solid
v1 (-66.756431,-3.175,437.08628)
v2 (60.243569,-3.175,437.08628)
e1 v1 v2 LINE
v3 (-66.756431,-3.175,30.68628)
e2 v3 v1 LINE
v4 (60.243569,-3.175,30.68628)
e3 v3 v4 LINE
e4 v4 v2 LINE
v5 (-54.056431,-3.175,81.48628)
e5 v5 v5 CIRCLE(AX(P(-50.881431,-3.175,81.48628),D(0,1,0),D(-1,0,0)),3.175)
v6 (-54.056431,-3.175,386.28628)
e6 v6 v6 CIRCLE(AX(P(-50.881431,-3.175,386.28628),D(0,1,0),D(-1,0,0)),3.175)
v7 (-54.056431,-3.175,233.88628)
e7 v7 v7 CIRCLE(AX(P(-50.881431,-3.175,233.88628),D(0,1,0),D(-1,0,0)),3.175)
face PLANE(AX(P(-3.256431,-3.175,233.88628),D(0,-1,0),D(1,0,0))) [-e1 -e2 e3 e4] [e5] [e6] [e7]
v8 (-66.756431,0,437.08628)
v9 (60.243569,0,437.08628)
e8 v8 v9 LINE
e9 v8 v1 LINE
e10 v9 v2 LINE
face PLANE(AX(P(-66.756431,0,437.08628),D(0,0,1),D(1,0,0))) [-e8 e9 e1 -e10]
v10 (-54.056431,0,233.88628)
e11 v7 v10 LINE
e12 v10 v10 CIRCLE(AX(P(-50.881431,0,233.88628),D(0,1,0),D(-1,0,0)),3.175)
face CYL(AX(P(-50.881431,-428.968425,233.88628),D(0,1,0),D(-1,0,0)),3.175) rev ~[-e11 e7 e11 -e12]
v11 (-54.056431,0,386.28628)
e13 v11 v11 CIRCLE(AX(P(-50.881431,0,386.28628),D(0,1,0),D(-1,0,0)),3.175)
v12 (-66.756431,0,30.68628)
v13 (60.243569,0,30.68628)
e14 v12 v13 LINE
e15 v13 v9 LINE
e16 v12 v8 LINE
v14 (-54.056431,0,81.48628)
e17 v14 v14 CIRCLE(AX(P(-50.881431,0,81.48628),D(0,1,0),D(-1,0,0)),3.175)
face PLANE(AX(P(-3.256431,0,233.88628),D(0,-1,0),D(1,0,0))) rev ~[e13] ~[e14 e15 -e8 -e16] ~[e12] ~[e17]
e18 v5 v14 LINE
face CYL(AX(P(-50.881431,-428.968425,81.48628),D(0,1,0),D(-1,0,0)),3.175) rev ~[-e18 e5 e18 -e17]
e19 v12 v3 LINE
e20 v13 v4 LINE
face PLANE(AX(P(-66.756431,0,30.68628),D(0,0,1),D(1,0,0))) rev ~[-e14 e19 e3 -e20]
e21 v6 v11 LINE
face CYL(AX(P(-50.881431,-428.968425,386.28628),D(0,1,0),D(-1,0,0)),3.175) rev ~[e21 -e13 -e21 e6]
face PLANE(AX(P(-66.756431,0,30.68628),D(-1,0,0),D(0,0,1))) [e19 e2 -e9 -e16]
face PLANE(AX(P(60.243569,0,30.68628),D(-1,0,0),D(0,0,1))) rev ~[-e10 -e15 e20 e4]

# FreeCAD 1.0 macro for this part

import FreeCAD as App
import Part
import Sketcher
from FreeCAD import Vector
Q = App.Units.Quantity


def add_polygon(sketch, points):
    """Adds a closed chain of lines whose ends are joined by coincident constraints."""
    first, n = sketch.GeometryCount, len(points)
    for a, b in zip(points, points[1:] + points[:1]):
        sketch.addGeometry(Part.LineSegment(App.Vector(*a, 0), App.Vector(*b, 0)), False)
    for i in range(n):
        sketch.addConstraint(Sketcher.Constraint("Coincident", first + i, 2, first + (i + 1) % n, 1))

doc = App.newDocument("Part")
body = doc.addObject("PartDesign::Body", "Body")

sketch1 = body.newObject("Sketcher::SketchObject", "Sketch")
sketch1.AttachmentSupport = (doc.getObject("XZ_Plane"), [""])
sketch1.MapMode = "FlatFace"
add_polygon(sketch1, [(-67, 437), (-67, 31), (60, 31), (60, 437)])
sketch1.addConstraint([
    Sketcher.Constraint("Vertical", 0),
    Sketcher.Constraint("Horizontal", 1),
    Sketcher.Constraint("Vertical", 2),
    Sketcher.Constraint("Horizontal", 3),
    Sketcher.Constraint("DistanceX", 1, 1, 1, 2, Q("5 in")),
    Sketcher.Constraint("DistanceY", 0, 2, 0, 1, Q("16 in")),
    Sketcher.Constraint("DistanceX", 0, 2, -1, 1, Q("66.756431 mm")),
    Sketcher.Constraint("DistanceY", -1, 1, 0, 2, Q("30.68628 mm")),
])
pad1 = body.newObject("PartDesign::Pad", "Pad")
pad1.Profile = sketch1
pad1.Length = Q("0.125 in")

sketch2 = body.newObject("Sketcher::SketchObject", "Sketch001")
sketch2.AttachmentSupport = (doc.getObject("XZ_Plane"), [""])
sketch2.MapMode = "FlatFace"
sketch2.AttachmentOffset = App.Placement(Vector(0, 0, 0.125 * 25.4), App.Rotation())
sketch2.addGeometry([
    Part.Circle(Vector(-50.9, 81.5, 0), Vector(0, 0, 1), 3.2),
    Part.Circle(Vector(-50.9, 233.9, 0), Vector(0, 0, 1), 3.2),
    Part.Circle(Vector(-50.9, 386.3, 0), Vector(0, 0, 1), 3.2),
], False)
sketch2.addConstraint([
    Sketcher.Constraint("Equal", 0, 1),
    Sketcher.Constraint("Equal", 1, 2),
    Sketcher.Constraint("Vertical", 0, 3, 1, 3),
    Sketcher.Constraint("Vertical", 1, 3, 2, 3),
    Sketcher.Constraint("Diameter", 0, Q("0.25 in")),
    Sketcher.Constraint("DistanceY", 0, 3, 1, 3, Q("6 in")),
    Sketcher.Constraint("DistanceY", 1, 3, 2, 3, Q("6 in")),
    Sketcher.Constraint("DistanceX", 0, 3, -1, 1, Q("50.881431 mm")),
    Sketcher.Constraint("DistanceY", -1, 1, 0, 3, Q("81.48628 mm")),
])
doc.recompute()
hole = body.newObject("PartDesign::Hole", "Hole")
hole.Profile = sketch2
hole.ThreadType = "None"
hole.Diameter = Q("0.25 in")
hole.DepthType = "ThroughAll"

doc.recompute()
